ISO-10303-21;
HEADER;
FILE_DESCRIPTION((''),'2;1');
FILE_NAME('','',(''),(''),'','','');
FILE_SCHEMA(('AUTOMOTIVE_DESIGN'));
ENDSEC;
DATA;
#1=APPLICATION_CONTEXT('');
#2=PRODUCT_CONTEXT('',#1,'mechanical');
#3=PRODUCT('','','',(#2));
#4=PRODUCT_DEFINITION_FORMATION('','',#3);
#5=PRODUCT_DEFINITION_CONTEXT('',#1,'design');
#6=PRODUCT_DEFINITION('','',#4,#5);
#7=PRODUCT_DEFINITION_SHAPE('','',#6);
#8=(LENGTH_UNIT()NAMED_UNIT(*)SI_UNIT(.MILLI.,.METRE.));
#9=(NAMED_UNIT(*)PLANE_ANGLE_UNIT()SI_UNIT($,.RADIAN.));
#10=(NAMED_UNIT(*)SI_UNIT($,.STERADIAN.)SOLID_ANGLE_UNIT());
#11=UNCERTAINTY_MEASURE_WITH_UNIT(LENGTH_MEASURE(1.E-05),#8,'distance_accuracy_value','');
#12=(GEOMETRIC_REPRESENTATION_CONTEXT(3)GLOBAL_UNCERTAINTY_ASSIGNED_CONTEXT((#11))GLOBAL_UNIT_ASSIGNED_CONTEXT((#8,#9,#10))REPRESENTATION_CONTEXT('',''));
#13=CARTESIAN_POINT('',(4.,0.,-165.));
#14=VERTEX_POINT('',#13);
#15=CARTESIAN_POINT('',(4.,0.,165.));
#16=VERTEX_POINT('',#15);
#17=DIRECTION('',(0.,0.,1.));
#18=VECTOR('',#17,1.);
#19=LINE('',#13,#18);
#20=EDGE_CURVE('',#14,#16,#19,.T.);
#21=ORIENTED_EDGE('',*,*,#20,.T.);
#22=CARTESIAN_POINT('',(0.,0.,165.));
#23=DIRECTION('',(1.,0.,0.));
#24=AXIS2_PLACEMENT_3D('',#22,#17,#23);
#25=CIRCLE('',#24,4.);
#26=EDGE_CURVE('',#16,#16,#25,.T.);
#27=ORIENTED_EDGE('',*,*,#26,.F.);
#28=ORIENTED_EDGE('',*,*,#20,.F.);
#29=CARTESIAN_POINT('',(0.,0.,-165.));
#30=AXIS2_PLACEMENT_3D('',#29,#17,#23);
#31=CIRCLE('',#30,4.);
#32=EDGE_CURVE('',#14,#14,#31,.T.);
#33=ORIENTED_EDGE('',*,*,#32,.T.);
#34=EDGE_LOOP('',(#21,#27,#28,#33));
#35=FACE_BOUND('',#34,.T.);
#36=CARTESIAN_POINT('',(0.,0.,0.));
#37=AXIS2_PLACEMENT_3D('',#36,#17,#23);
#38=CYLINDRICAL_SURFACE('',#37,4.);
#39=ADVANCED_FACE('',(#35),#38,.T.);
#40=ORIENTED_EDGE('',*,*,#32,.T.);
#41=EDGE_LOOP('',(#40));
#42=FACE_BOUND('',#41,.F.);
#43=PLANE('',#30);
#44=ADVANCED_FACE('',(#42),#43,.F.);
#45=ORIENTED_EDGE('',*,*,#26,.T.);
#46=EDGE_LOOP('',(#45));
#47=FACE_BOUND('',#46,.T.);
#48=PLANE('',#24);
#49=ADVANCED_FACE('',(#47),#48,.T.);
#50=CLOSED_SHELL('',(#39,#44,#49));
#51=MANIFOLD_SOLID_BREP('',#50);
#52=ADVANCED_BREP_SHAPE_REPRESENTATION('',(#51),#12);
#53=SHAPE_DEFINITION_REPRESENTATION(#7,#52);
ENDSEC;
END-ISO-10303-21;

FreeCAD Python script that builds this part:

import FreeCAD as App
import Part
import Sketcher

doc = App.newDocument("Part")
body = doc.addObject("PartDesign::Body", "Body")

sketch1 = body.newObject("Sketcher::SketchObject", "Sketch")
sketch1.AttachmentSupport = (doc.getObject("XY_Plane"), [""])
sketch1.MapMode = "FlatFace"
sketch1.addGeometry(Part.Circle(App.Vector(0, 0, 0), App.Vector(0, 0, 1), 4), False)
sketch1.addConstraint([
    Sketcher.Constraint("Coincident", 0, 3, -1, 1),
    Sketcher.Constraint("Diameter", 0, 8.0),
])
pad1 = body.newObject("PartDesign::Pad", "Pad")
pad1.Profile = sketch1
pad1.Length = 330
pad1.Midplane = True

doc.recompute()
